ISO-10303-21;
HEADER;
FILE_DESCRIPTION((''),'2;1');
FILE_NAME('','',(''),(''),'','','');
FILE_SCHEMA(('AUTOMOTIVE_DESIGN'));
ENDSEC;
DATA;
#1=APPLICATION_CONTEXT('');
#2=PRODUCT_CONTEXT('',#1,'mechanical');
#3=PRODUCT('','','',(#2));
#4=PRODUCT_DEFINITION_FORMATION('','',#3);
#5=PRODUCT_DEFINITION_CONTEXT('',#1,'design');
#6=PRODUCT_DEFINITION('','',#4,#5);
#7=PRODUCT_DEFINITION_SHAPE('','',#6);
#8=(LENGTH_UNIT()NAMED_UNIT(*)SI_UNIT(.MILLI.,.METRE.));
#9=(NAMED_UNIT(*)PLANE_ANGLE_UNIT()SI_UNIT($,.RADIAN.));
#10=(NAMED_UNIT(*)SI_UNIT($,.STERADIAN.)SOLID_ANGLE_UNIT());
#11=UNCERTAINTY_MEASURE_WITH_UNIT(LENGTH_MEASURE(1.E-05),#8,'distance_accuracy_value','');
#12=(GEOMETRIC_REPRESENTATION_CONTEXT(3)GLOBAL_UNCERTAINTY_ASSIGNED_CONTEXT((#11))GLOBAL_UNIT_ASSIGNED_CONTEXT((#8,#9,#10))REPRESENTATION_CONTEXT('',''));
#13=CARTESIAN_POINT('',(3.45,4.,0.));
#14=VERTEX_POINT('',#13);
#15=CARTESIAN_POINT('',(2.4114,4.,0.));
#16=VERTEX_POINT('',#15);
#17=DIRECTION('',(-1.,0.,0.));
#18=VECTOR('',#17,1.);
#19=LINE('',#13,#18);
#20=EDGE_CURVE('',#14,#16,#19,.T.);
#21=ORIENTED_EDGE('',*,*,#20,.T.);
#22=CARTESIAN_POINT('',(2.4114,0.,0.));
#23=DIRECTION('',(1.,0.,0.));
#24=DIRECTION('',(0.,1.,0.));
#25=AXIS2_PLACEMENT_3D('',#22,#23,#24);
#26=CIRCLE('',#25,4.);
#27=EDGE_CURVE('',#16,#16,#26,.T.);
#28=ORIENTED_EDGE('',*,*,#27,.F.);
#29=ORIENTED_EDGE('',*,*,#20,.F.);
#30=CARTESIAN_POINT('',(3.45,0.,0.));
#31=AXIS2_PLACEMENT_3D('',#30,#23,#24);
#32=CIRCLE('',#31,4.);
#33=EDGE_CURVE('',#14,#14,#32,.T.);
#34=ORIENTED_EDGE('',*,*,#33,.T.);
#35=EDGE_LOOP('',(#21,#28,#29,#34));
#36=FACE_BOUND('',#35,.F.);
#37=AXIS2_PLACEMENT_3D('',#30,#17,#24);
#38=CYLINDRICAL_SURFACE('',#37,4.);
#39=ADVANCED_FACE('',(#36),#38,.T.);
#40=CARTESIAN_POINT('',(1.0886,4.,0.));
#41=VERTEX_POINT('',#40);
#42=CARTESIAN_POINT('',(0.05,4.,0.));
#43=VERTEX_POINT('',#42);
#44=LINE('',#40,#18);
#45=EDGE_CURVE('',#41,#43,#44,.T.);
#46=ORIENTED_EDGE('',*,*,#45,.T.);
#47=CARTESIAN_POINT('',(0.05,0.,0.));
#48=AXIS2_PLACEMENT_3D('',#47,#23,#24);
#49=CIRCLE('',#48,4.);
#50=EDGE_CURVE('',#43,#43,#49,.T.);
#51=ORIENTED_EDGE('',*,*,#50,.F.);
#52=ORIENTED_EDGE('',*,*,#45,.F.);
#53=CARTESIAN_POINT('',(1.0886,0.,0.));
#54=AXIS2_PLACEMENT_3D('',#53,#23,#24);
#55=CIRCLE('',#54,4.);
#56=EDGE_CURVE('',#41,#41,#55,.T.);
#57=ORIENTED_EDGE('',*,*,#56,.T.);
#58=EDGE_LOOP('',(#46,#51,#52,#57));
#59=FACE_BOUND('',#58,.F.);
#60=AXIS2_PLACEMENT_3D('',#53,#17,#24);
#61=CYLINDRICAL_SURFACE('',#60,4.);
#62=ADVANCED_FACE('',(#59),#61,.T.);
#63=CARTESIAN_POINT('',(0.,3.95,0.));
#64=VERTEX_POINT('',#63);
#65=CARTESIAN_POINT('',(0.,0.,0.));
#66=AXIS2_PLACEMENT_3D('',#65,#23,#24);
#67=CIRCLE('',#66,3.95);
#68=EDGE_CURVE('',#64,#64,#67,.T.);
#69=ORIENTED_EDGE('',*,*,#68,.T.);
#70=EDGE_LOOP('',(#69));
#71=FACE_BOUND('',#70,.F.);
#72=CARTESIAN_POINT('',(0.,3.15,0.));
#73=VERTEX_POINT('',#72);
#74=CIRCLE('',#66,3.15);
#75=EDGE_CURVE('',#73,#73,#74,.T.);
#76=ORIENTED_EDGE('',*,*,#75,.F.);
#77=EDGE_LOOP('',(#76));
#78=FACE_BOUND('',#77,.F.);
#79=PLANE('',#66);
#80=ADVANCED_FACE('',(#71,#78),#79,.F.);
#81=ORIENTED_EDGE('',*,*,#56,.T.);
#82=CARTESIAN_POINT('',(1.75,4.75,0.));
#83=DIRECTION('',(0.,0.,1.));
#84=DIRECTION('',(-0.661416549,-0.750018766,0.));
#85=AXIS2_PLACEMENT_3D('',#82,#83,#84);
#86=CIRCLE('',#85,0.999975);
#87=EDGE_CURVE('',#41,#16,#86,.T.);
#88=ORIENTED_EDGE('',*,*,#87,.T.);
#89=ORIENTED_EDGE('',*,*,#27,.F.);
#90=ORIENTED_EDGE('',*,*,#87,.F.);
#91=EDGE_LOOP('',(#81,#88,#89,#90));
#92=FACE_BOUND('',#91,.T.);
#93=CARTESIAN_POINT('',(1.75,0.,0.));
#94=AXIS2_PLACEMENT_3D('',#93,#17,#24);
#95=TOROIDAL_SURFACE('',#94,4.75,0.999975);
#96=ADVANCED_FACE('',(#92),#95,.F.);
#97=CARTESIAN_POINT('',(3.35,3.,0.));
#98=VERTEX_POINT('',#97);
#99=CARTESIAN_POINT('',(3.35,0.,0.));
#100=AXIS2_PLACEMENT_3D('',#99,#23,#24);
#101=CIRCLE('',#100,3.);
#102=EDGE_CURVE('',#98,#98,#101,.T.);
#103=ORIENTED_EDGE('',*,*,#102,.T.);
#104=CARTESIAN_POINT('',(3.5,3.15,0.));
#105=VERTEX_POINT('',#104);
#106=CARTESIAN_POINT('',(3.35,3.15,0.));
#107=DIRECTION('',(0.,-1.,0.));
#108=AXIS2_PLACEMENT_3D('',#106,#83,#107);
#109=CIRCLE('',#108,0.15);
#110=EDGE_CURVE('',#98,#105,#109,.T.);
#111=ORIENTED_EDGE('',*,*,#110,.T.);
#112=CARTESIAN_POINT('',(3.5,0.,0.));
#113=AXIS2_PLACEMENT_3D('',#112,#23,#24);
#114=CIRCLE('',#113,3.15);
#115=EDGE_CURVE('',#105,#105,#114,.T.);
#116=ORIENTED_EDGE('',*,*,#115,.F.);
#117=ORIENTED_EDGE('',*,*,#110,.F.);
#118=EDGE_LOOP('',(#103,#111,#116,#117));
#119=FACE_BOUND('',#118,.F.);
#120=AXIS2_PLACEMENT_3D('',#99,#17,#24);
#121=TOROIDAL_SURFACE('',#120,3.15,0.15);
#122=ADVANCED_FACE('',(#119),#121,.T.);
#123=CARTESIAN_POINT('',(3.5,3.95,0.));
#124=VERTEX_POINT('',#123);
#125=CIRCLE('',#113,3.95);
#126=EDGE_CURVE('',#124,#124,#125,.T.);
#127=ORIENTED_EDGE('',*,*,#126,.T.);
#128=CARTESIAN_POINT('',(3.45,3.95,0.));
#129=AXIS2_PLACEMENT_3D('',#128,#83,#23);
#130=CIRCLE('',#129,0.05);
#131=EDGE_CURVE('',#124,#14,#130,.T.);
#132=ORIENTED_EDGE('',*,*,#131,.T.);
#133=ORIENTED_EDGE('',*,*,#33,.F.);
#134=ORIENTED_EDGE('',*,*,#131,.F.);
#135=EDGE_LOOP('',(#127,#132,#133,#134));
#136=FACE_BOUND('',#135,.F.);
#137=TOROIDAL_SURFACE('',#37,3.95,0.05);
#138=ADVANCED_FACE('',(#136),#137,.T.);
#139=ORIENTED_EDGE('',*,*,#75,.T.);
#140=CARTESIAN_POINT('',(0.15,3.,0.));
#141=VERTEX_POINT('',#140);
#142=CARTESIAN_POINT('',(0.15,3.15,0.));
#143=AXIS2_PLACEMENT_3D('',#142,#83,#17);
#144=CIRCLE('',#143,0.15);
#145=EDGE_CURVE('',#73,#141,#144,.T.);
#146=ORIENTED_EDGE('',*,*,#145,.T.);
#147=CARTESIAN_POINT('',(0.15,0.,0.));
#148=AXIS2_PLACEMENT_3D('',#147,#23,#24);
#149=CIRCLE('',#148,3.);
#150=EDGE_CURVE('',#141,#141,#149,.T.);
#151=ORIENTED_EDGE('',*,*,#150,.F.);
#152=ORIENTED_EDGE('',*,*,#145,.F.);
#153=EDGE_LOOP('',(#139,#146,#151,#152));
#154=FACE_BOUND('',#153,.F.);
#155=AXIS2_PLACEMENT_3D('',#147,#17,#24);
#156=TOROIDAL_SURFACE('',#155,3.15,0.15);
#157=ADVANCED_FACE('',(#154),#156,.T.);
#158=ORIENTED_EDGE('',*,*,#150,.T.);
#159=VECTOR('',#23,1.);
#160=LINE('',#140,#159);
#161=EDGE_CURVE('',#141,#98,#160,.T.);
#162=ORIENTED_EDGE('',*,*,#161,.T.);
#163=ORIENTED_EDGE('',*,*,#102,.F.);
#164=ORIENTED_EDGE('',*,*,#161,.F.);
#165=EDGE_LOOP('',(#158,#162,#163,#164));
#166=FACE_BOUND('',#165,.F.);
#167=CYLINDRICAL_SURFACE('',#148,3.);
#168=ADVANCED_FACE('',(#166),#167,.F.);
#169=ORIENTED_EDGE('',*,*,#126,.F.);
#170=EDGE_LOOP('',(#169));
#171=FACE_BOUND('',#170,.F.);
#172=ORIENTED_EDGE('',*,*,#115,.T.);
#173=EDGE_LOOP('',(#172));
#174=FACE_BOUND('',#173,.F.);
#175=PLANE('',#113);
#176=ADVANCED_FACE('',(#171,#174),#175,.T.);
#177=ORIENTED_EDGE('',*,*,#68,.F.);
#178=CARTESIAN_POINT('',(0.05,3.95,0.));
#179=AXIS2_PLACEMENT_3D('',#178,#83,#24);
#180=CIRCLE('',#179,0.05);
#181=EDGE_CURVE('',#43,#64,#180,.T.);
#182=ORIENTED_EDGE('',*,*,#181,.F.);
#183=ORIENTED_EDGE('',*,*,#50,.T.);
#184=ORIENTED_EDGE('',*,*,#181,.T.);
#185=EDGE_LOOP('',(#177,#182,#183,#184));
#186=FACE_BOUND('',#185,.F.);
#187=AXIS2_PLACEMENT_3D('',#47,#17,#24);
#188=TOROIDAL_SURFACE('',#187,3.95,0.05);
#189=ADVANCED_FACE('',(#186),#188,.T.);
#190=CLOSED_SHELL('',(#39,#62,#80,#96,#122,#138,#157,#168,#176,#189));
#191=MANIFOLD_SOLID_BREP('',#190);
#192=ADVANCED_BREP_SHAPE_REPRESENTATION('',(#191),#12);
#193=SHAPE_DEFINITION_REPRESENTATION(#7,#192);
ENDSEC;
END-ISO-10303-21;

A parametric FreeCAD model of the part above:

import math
import FreeCAD as App
import Part
import Sketcher

V = App.Vector

doc = App.newDocument("Part")
params = doc.addObject("Spreadsheet::Sheet", "Params")
for row, (alias, value) in enumerate([
    ("sketch1_radius", "1 mm"),
    ("sketch1_radius2", "0.15 mm"),
    ("sketch1_radius3", "0.05 mm"),
    ("sketch1_width", "3.2 mm"),
    ("sketch1_height", "0.8 mm"),
    ("revolution_angle", "360 deg"),
], start=1):
    params.set(f"A{row}", alias)
    params.set(f"B{row}", "=" + value)
    params.setAlias(f"B{row}", alias)

body = doc.addObject("PartDesign::Body", "Body")

# Sketch on XY plane
sketch1 = body.newObject("Sketcher::SketchObject", "Sketch")
sketch1.AttachmentSupport = (doc.getObject("XY_Plane"), [""])
sketch1.MapMode = "FlatFace"
sketch1.addGeometry(Part.LineSegment(V(0, 3.95, 0), V(0, 3.15, 0)), False)
sketch1.addGeometry(Part.ArcOfCircle(Part.Circle(V(0.15, 3.15, 0), V(0, 0, 1), 0.15), math.radians(180), math.radians(270)), False)
sketch1.addGeometry(Part.LineSegment(V(0.15, 3, 0), V(3.35, 3, 0)), False)
sketch1.addGeometry(Part.ArcOfCircle(Part.Circle(V(3.35, 3.15, 0), V(0, 0, 1), 0.15), math.radians(-90), math.radians(0)), False)
sketch1.addGeometry(Part.LineSegment(V(3.5, 3.15, 0), V(3.5, 3.95, 0)), False)
sketch1.addGeometry(Part.ArcOfCircle(Part.Circle(V(3.45, 3.95, 0), V(0, 0, 1), 0.05), math.radians(0), math.radians(90)), False)
sketch1.addGeometry(Part.LineSegment(V(3.45, 4, 0), V(2.411, 4, 0)), False)
sketch1.addGeometry(Part.ArcOfCircle(Part.Circle(V(1.75, 4.75, 0), V(0, 0, 1), 1), math.radians(-131), math.radians(-49)), False)
sketch1.addGeometry(Part.LineSegment(V(1.089, 4, 0), V(0.05, 4, 0)), False)
sketch1.addGeometry(Part.ArcOfCircle(Part.Circle(V(0.05, 3.95, 0), V(0, 0, 1), 0.05), math.radians(90), math.radians(180)), False)
sketch1.addConstraint(Sketcher.Constraint("Tangent", 0, 2, 1, 1))
sketch1.addConstraint(Sketcher.Constraint("Tangent", 1, 2, 2, 1))
sketch1.addConstraint(Sketcher.Constraint("Tangent", 2, 2, 3, 1))
sketch1.addConstraint(Sketcher.Constraint("Tangent", 3, 2, 4, 1))
sketch1.addConstraint(Sketcher.Constraint("Tangent", 4, 2, 5, 1))
sketch1.addConstraint(Sketcher.Constraint("Tangent", 5, 2, 6, 1))
sketch1.addConstraint(Sketcher.Constraint("Coincident", 6, 2, 7, 2))
sketch1.addConstraint(Sketcher.Constraint("Coincident", 7, 1, 8, 1))
sketch1.addConstraint(Sketcher.Constraint("Tangent", 8, 2, 9, 1))
sketch1.addConstraint(Sketcher.Constraint("Tangent", 9, 2, 0, 1))
sketch1.addConstraint(Sketcher.Constraint("Vertical", 0))
sketch1.addConstraint(Sketcher.Constraint("Horizontal", 2))
sketch1.addConstraint(Sketcher.Constraint("Vertical", 4))
sketch1.addConstraint(Sketcher.Constraint("Horizontal", 6))
sketch1.addConstraint(Sketcher.Constraint("Horizontal", 8))
sketch1.addConstraint(Sketcher.Constraint("Equal", 1, 3))
sketch1.addConstraint(Sketcher.Constraint("Equal", 5, 9))
sketch1.addConstraint(Sketcher.Constraint("PointOnObject", 0, 2, -2))
sketch1.addConstraint(Sketcher.Constraint("Horizontal", 5, 3, 9, 3))
sketch1.addConstraint(Sketcher.Constraint("Equal", 6, 8))
sketch1.addConstraint(Sketcher.Constraint("Radius", 7, 1.0))
sketch1.addConstraint(Sketcher.Constraint("Radius", 1, 0.15))
sketch1.addConstraint(Sketcher.Constraint("Radius", 5, 0.05))
sketch1.addConstraint(Sketcher.Constraint("DistanceX", 2, 1, 2, 2, 3.2))
sketch1.addConstraint(Sketcher.Constraint("DistanceY", 0, 2, 0, 1, 0.8))
sketch1.addConstraint(Sketcher.Constraint("DistanceY", -1, 1, 1, 2, 3.0))
sketch1.addConstraint(Sketcher.Constraint("DistanceY", 5, 3, 7, 3, 0.8))
sketch1.setExpression("Constraints[20]", "Params.sketch1_radius")
sketch1.setExpression("Constraints[21]", "Params.sketch1_radius2")
sketch1.setExpression("Constraints[22]", "Params.sketch1_radius3")
sketch1.setExpression("Constraints[23]", "Params.sketch1_width")
sketch1.setExpression("Constraints[24]", "Params.sketch1_height")
revolution = body.newObject("PartDesign::Revolution", "Revolution")
revolution.Profile = sketch1
revolution.ReferenceAxis = (sketch1, ["H_Axis"])
revolution.setExpression("Angle", "Params.revolution_angle")

doc.recompute()
